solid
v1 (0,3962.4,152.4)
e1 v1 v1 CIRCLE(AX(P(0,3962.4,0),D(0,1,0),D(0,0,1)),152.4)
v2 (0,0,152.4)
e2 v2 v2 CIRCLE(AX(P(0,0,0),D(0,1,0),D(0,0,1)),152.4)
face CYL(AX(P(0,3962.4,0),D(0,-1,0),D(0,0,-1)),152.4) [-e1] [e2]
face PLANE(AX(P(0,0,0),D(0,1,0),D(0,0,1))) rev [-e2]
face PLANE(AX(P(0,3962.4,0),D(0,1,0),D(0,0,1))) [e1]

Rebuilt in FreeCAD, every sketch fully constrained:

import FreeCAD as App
import Part
import Sketcher
from FreeCAD import Vector
Q = App.Units.Quantity

doc = App.newDocument("Part")
body = doc.addObject("PartDesign::Body", "Body")

sketch1 = body.newObject("Sketcher::SketchObject", "Sketch")
sketch1.AttachmentSupport = (doc.getObject("XZ_Plane"), [""])
sketch1.MapMode = "FlatFace"
sketch1.addGeometry(Part.Circle(Vector(0, 0, 0), Vector(0, 0, 1), 152), False)
sketch1.addConstraint([
    Sketcher.Constraint("Coincident", 0, 3, -1, 1),
    Sketcher.Constraint("Diameter", 0, Q("12 in")),
])
pad1 = body.newObject("PartDesign::Pad", "Pad")
pad1.Profile = sketch1
pad1.Length = Q("156 in")
pad1.Reversed = True

doc.recompute()
